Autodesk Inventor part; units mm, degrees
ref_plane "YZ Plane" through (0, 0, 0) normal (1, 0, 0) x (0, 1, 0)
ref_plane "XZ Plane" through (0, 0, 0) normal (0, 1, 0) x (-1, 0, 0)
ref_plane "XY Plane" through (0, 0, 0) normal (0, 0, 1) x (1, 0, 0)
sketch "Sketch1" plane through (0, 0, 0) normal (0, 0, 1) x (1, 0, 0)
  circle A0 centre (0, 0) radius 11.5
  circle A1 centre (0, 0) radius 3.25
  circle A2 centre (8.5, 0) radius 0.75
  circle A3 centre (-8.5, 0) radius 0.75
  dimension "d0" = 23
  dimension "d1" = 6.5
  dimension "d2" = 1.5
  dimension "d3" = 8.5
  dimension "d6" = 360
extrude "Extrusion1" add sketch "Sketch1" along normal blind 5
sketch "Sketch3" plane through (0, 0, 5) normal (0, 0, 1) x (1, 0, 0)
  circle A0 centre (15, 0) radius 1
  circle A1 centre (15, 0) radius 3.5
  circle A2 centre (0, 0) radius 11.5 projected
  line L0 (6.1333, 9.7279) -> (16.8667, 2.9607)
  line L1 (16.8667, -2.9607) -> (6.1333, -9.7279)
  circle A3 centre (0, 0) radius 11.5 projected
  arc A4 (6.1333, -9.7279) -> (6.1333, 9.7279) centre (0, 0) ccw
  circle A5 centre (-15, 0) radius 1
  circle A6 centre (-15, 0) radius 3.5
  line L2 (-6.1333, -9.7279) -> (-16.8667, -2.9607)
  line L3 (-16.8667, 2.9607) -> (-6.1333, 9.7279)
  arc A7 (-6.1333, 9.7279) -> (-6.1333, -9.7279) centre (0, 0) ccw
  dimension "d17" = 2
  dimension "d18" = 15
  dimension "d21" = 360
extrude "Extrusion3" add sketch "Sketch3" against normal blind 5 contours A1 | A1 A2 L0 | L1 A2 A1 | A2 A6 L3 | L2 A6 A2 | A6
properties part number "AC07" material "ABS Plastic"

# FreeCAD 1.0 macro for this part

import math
import FreeCAD as App
import Part
import Sketcher

V = App.Vector
Q = App.Units.Quantity

doc = App.newDocument("Part")
body = doc.addObject("PartDesign::Body", "Body")

# Sketch on XY plane
sketch1 = doc.addObject("Sketcher::SketchObject", "Sketch")
body.addObject(sketch1)
sketch1.AttachmentSupport = (doc.XY_Plane, [""])
sketch1.MapMode = "FlatFace"
sketch1.addGeometry(Part.Circle(V(0, 0, 0), V(0, 0, 1), 11.5), False)
sketch1.addGeometry(Part.Circle(V(-8.5, 0, 0), V(0, 0, 1), 0.8), False)
sketch1.addGeometry(Part.Circle(V(0, 0, 0), V(0, 0, 1), 3.2), False)
sketch1.addGeometry(Part.Circle(V(8.5, 0, 0), V(0, 0, 1), 0.8), False)
sketch1.addConstraint(Sketcher.Constraint("Coincident", 0, 3, -1, 1))
sketch1.addConstraint(Sketcher.Constraint("Coincident", 2, 3, -1, 1))
sketch1.addConstraint(Sketcher.Constraint("Equal", 1, 3))
sketch1.addConstraint(Sketcher.Constraint("Symmetric", 1, 3, 3, 3, -1, 1))
sketch1.addConstraint(Sketcher.Constraint("PointOnObject", 1, 3, -1))
sketch1.addConstraint(Sketcher.Constraint("Diameter", 0, Q("23 mm")))
sketch1.addConstraint(Sketcher.Constraint("Diameter", 1, Q("1.5 mm")))
sketch1.addConstraint(Sketcher.Constraint("Diameter", 2, Q("6.5 mm")))
sketch1.addConstraint(Sketcher.Constraint("DistanceX", 1, 3, -1, 1, Q("8.5 mm")))
pad1 = doc.addObject("PartDesign::Pad", "Pad")
body.addObject(pad1)
pad1.Profile = sketch1
pad1.Length = 5

# Sketch on XY plane
sketch2 = doc.addObject("Sketcher::SketchObject", "Sketch001")
body.addObject(sketch2)
sketch2.AttachmentSupport = (doc.XY_Plane, [""])
sketch2.MapMode = "FlatFace"
sketch2.AttachmentOffset = App.Placement(V(0, 0, 5), App.Rotation())
sketch2.addGeometry(Part.ArcOfCircle(Part.Circle(V(15, 0, 0), V(0, 0, 1), 3.5), math.radians(-58), math.radians(58)), False)
sketch2.addGeometry(Part.LineSegment(V(16.9, 3, 0), V(6.1, 9.7, 0)), False)
sketch2.addGeometry(Part.ArcOfCircle(Part.Circle(V(0, 0, 0), V(0, 0, 1), 11.5), math.radians(-58), math.radians(58)), False)
sketch2.addGeometry(Part.LineSegment(V(6.1, -9.7, 0), V(16.9, -3, 0)), False)
sketch2.addGeometry(Part.Circle(V(15, 0, 0), V(0, 0, 1), 1), False)
sketch2.addGeometry(Part.LineSegment(V(-6.1, 9.7, 0), V(-16.9, 3, 0)), False)
sketch2.addGeometry(Part.ArcOfCircle(Part.Circle(V(-15, 0, 0), V(0, 0, 1), 3.5), math.radians(122), math.radians(238)), False)
sketch2.addGeometry(Part.LineSegment(V(-16.9, -3, 0), V(-6.1, -9.7, 0)), False)
sketch2.addGeometry(Part.ArcOfCircle(Part.Circle(V(0, 0, 0), V(0, 0, 1), 11.5), math.radians(122), math.radians(238)), False)
sketch2.addGeometry(Part.Circle(V(-15, 0, 0), V(0, 0, 1), 1), False)
sketch2.addConstraint(Sketcher.Constraint("Tangent", 0, 2, 1, 1))
sketch2.addConstraint(Sketcher.Constraint("Tangent", 1, 2, 2, 2))
sketch2.addConstraint(Sketcher.Constraint("Tangent", 2, 1, 3, 1))
sketch2.addConstraint(Sketcher.Constraint("Tangent", 3, 2, 0, 1))
sketch2.addConstraint(Sketcher.Constraint("Tangent", 5, 2, 6, 1))
sketch2.addConstraint(Sketcher.Constraint("Tangent", 6, 2, 7, 1))
sketch2.addConstraint(Sketcher.Constraint("Tangent", 7, 2, 8, 2))
sketch2.addConstraint(Sketcher.Constraint("Tangent", 8, 1, 5, 1))
sketch2.addConstraint(Sketcher.Constraint("Coincident", 2, 3, -1, 1))
sketch2.addConstraint(Sketcher.Constraint("Coincident", 8, 3, -1, 1))
sketch2.addConstraint(Sketcher.Constraint("Coincident", 4, 3, 0, 3))
sketch2.addConstraint(Sketcher.Constraint("Coincident", 9, 3, 6, 3))
sketch2.addConstraint(Sketcher.Constraint("Equal", 0, 6))
sketch2.addConstraint(Sketcher.Constraint("Equal", 2, 8))
sketch2.addConstraint(Sketcher.Constraint("Equal", 4, 9))
sketch2.addConstraint(Sketcher.Constraint("Symmetric", 0, 3, 6, 3, -1, 1))
sketch2.addConstraint(Sketcher.Constraint("PointOnObject", 0, 3, -1))
sketch2.addConstraint(Sketcher.Constraint("Diameter", 4, Q("2 mm")))
sketch2.addConstraint(Sketcher.Constraint("DistanceX", -1, 1, 0, 3, Q("15 mm")))
sketch2.addConstraint(Sketcher.Constraint("Radius", 0, Q("3.5 mm")))
sketch2.addConstraint(Sketcher.Constraint("Radius", 2, Q("11.5 mm")))
pad2 = doc.addObject("PartDesign::Pad", "Pad001")
body.addObject(pad2)
pad2.Profile = sketch2
pad2.Length = 5
pad2.Reversed = True

doc.recompute()
